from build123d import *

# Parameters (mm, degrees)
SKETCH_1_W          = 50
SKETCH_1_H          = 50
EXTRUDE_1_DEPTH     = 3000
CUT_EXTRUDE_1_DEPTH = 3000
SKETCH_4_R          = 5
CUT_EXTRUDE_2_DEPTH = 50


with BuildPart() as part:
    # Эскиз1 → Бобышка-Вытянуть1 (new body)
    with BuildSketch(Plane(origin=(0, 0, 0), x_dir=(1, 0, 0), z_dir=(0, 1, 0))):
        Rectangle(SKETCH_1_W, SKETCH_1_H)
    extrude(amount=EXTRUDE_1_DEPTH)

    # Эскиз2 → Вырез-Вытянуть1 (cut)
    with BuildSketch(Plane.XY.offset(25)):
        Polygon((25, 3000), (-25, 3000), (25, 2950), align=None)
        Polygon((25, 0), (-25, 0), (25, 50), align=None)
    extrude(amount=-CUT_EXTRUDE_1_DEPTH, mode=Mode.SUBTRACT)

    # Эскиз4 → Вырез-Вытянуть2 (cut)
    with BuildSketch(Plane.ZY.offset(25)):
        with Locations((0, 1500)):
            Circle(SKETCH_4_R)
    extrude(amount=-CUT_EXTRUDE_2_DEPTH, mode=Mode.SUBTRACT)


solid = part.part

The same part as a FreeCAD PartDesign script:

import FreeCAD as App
import Part
import Sketcher
Q = App.Units.Quantity

doc = App.newDocument("Part")
body = doc.addObject("PartDesign::Body", "Body")

# Sketch on XZ plane
sketch1 = doc.addObject("Sketcher::SketchObject", "Sketch")
body.addObject(sketch1)
sketch1.AttachmentSupport = (doc.XZ_Plane, [""])
sketch1.MapMode = "FlatFace"
sketch1.addGeometry([
    Part.LineSegment(App.Vector(-25, -25, 0), App.Vector(-25, 25, 0)),
    Part.LineSegment(App.Vector(-25, 25, 0), App.Vector(25, 25, 0)),
    Part.LineSegment(App.Vector(25, 25, 0), App.Vector(25, -25, 0)),
    Part.LineSegment(App.Vector(25, -25, 0), App.Vector(-25, -25, 0)),
], False)
sketch1.addConstraint([
    Sketcher.Constraint("Coincident", 0, 2, 1, 1),
    Sketcher.Constraint("Coincident", 1, 2, 2, 1),
    Sketcher.Constraint("Coincident", 2, 2, 3, 1),
    Sketcher.Constraint("Coincident", 3, 2, 0, 1),
    Sketcher.Constraint("Vertical", 0),
    Sketcher.Constraint("Horizontal", 1),
    Sketcher.Constraint("Vertical", 2),
    Sketcher.Constraint("Horizontal", 3),
    Sketcher.Constraint("Symmetric", 0, 2, 2, 2, -1, 1),
    Sketcher.Constraint("Equal", 3, 0),
    Sketcher.Constraint("DistanceX", 1, 1, 1, 2, Q("50 mm")),
])
pad1 = doc.addObject("PartDesign::Pad", "Pad")
body.addObject(pad1)
pad1.Profile = sketch1
pad1.Length = 3000
pad1.Reversed = True

# Sketch on XY plane
sketch2 = doc.addObject("Sketcher::SketchObject", "Sketch001")
body.addObject(sketch2)
sketch2.AttachmentSupport = (doc.XY_Plane, [""])
sketch2.MapMode = "FlatFace"
sketch2.AttachmentOffset = App.Placement(App.Vector(0, 0, 25), App.Rotation())
sketch2.addGeometry([
    Part.LineSegment(App.Vector(25, 3000, 0), App.Vector(-25, 3000, 0)),  # 0
    Part.LineSegment(App.Vector(-25, 3000, 0), App.Vector(25, 2950, 0)),  # 1
    Part.LineSegment(App.Vector(25, 2950, 0), App.Vector(25, 3000, 0)),  # 2
    Part.LineSegment(App.Vector(-25, 0, 0), App.Vector(25, 0, 0)),  # 3
    Part.LineSegment(App.Vector(25, 0, 0), App.Vector(25, 50, 0)),  # 4
    Part.LineSegment(App.Vector(25, 50, 0), App.Vector(-25, 0, 0)),  # 5
], False)
sketch2.addConstraint([
    Sketcher.Constraint("Coincident", 0, 2, 1, 1),
    Sketcher.Constraint("Coincident", 1, 2, 2, 1),
    Sketcher.Constraint("Coincident", 2, 2, 0, 1),
    Sketcher.Constraint("Coincident", 3, 2, 4, 1),
    Sketcher.Constraint("Coincident", 4, 2, 5, 1),
    Sketcher.Constraint("Coincident", 5, 2, 3, 1),
    Sketcher.Constraint("Horizontal", 0),
    Sketcher.Constraint("Vertical", 2),
    Sketcher.Constraint("Horizontal", 3),
    Sketcher.Constraint("Vertical", 4),
    Sketcher.Constraint("Symmetric", 3, 2, 5, 2, -1, 1),
    Sketcher.Constraint("Perpendicular", 1, 5),
    Sketcher.Constraint("Vertical", 2, 2, 3, 2),
    Sketcher.Constraint("Vertical", 0, 2, 5, 2),
    Sketcher.Constraint("Equal", 3, 2),
    Sketcher.Constraint("DistanceX", 0, 2, 0, 1, Q("50 mm")),
    Sketcher.Constraint("DistanceY", -1, 1, 0, 2, Q("3000 mm")),
])
pocket1 = doc.addObject("PartDesign::Pocket", "Pocket")
body.addObject(pocket1)
pocket1.Profile = sketch2
pocket1.Length = 3000

# Sketch on YZ plane
sketch3 = doc.addObject("Sketcher::SketchObject", "Sketch002")
body.addObject(sketch3)
sketch3.AttachmentSupport = (doc.YZ_Plane, [""])
sketch3.MapMode = "FlatFace"
sketch3.AttachmentOffset = App.Placement(App.Vector(0, 0, -25), App.Rotation())
sketch3.addGeometry(Part.Circle(App.Vector(1500, 0, 0), App.Vector(0, 0, 1), 5), False)
sketch3.addConstraint([
    Sketcher.Constraint("PointOnObject", 0, 3, -1),
    Sketcher.Constraint("Diameter", 0, Q("10 mm")),
    Sketcher.Constraint("DistanceX", -1, 1, 0, 3, Q("1500 mm")),
])
pocket2 = doc.addObject("PartDesign::Pocket", "Pocket001")
body.addObject(pocket2)
pocket2.Profile = sketch3
pocket2.Length = 50
pocket2.Reversed = True

doc.recompute()
